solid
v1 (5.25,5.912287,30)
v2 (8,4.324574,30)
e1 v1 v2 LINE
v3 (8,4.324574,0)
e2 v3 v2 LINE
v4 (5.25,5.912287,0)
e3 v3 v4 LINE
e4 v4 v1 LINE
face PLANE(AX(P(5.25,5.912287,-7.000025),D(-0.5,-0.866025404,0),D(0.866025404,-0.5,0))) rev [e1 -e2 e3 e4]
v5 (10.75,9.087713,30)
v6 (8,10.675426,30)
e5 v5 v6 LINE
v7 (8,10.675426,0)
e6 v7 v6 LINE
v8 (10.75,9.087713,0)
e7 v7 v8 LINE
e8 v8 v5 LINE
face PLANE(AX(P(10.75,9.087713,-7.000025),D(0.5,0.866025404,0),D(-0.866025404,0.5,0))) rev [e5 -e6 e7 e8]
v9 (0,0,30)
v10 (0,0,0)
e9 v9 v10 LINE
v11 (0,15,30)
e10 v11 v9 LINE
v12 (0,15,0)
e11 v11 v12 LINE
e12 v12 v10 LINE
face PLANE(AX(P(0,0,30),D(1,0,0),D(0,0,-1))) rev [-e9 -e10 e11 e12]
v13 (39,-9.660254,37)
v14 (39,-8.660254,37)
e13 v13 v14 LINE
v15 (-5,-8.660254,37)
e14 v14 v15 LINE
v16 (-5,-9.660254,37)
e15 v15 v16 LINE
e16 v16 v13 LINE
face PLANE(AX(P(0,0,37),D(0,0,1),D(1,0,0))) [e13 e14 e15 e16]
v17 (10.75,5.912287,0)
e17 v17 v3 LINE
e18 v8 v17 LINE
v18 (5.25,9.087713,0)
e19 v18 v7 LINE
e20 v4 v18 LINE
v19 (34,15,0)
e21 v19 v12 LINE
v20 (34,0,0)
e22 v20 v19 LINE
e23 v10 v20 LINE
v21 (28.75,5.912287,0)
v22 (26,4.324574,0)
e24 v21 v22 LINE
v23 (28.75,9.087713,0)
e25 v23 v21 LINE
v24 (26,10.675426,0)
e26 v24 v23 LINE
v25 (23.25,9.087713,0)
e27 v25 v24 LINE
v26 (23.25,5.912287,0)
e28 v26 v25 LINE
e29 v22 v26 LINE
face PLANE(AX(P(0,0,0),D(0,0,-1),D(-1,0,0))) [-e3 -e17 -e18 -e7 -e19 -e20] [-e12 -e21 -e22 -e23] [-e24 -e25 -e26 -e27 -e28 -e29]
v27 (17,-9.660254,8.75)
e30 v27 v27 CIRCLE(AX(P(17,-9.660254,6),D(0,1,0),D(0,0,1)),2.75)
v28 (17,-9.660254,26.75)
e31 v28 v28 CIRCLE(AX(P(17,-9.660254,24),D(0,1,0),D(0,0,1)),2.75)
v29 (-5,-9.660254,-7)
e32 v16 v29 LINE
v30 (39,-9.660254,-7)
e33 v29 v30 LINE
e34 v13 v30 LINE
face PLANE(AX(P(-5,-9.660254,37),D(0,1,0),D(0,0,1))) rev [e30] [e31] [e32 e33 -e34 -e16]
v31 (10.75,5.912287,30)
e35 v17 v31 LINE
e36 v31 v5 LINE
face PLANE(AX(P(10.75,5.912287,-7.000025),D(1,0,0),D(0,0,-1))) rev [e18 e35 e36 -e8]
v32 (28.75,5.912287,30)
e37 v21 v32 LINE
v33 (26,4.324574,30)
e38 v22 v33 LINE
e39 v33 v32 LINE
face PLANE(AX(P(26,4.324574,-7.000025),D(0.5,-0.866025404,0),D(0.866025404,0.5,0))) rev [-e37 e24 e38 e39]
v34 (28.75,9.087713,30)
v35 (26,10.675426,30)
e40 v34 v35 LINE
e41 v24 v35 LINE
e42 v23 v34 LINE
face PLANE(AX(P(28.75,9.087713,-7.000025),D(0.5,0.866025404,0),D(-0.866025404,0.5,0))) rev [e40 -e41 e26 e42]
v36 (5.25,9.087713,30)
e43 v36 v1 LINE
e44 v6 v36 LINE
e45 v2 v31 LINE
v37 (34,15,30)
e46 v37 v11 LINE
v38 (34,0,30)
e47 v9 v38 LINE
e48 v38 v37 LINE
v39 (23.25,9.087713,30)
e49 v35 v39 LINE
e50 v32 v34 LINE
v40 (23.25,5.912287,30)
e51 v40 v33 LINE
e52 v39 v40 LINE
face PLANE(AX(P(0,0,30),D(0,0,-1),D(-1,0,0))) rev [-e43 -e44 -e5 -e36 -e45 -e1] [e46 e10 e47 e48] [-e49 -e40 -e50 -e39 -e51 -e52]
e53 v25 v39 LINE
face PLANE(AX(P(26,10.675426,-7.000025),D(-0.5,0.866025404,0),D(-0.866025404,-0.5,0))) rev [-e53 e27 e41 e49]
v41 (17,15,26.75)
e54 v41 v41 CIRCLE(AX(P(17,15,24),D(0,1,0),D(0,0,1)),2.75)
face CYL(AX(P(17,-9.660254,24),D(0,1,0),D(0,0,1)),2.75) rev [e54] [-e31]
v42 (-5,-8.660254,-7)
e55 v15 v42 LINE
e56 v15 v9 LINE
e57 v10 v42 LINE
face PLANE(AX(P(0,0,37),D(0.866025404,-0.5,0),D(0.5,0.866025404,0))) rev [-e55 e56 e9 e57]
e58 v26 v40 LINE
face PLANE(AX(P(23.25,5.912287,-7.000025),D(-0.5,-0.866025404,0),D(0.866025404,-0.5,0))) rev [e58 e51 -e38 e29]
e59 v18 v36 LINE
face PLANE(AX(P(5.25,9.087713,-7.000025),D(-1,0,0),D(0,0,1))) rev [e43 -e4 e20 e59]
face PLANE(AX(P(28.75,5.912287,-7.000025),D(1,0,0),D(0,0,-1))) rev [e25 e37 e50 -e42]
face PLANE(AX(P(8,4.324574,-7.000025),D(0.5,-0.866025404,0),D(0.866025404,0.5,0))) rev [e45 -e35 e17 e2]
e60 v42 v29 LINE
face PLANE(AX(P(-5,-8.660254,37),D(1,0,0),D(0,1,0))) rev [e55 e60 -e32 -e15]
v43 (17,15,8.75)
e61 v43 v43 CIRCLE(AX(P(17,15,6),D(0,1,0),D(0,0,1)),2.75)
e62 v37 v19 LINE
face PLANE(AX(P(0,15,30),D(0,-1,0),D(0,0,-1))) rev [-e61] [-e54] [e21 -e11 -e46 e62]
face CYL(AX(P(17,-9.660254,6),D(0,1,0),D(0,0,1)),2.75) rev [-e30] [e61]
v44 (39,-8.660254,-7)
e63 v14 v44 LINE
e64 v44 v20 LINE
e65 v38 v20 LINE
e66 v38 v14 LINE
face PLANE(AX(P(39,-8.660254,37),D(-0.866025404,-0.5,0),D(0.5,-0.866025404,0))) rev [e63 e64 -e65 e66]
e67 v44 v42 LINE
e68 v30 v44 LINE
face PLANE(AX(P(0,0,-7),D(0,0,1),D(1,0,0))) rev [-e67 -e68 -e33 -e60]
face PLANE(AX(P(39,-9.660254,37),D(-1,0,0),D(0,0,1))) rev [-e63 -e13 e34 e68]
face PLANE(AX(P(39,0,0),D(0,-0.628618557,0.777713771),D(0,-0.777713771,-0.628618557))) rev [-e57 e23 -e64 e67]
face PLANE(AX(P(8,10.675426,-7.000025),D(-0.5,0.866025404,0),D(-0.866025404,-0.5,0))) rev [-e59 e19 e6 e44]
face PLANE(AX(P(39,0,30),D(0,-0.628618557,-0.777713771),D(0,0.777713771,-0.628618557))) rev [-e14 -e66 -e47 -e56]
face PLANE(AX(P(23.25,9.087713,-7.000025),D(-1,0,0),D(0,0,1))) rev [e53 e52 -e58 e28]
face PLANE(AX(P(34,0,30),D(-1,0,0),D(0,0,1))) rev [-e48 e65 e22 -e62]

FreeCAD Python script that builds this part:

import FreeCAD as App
import Part
import Sketcher

V = App.Vector
Q = App.Units.Quantity


def add_polygon(sketch, points):
    """Adds a closed chain of lines whose ends are joined by coincident constraints."""
    first, n = sketch.GeometryCount, len(points)
    for a, b in zip(points, points[1:] + points[:1]):
        sketch.addGeometry(Part.LineSegment(App.Vector(*a, 0), App.Vector(*b, 0)), False)
    for i in range(n):
        sketch.addConstraint(Sketcher.Constraint("Coincident", first + i, 2, first + (i + 1) % n, 1))

doc = App.newDocument("Part")
params = doc.addObject("Spreadsheet::Sheet", "Params")
for row, (alias, value) in enumerate([
    ("sketch1_width", "34 mm"),
    ("sketch1_height", "15 mm"),
    ("pad1_length", "30 mm"),
    ("sketch2_width", "44 mm"),
    ("sketch2_width2", "34 mm"),
    ("sketch2_height", "1 mm"),
    ("pad2_length", "7 mm"),
    ("pad2_length2", "37 mm"),
    ("sketch4_height", "7 mm"),
    ("sketch5_diameter", "5.5 mm"),
], start=1):
    params.set(f"A{row}", alias)
    params.set(f"B{row}", "=" + value)
    params.setAlias(f"B{row}", alias)

body = doc.addObject("PartDesign::Body", "Body")

# Sketch on XY plane
sketch1 = body.newObject("Sketcher::SketchObject", "Sketch")
sketch1.AttachmentSupport = (doc.getObject("XY_Plane"), [""])
sketch1.MapMode = "FlatFace"
add_polygon(sketch1, [(0, 15), (0, 0), (34, 0), (34, 15)])  # lines 0-3
sketch1.addConstraint([
    Sketcher.Constraint("Vertical", 0),
    Sketcher.Constraint("Horizontal", 1),
    Sketcher.Constraint("Vertical", 2),
    Sketcher.Constraint("Horizontal", 3),
    Sketcher.Constraint("Coincident", 0, 2, -1, 1),
    Sketcher.Constraint("DistanceX", 1, 1, 1, 2, Q("34 mm")),
    Sketcher.Constraint("DistanceY", 0, 2, 0, 1, Q("15 mm")),
])
sketch1.setExpression("Constraints[9]", "Params.sketch1_width")
sketch1.setExpression("Constraints[10]", "Params.sketch1_height")
pad1 = body.newObject("PartDesign::Pad", "Pad")
pad1.Profile = sketch1
pad1.setExpression("Length", "Params.pad1_length")

# Sketch on XY plane
sketch2 = body.newObject("Sketcher::SketchObject", "Sketch001")
sketch2.AttachmentSupport = (doc.getObject("XY_Plane"), [""])
sketch2.MapMode = "FlatFace"
sketch2.AttachmentOffset = App.Placement(V(0, 0, 30), App.Rotation())
add_polygon(sketch2, [(0, 0), (-5, -8.7), (-5, -9.7), (39, -9.7), (39, -8.7), (34, 0)])  # lines 0-5
sketch2.addConstraint([
    Sketcher.Constraint("Vertical", 1),
    Sketcher.Constraint("Horizontal", 2),
    Sketcher.Constraint("Vertical", 3),
    Sketcher.Constraint("Horizontal", 5),
    Sketcher.Constraint("Coincident", 5, 2, -1, 1),
    Sketcher.Constraint("Horizontal", 0, 2, 3, 2),
    Sketcher.Constraint("Equal", 0, 4),
    Sketcher.Constraint("DistanceX", 2, 1, 2, 2, Q("44 mm")),
    Sketcher.Constraint("DistanceX", 5, 2, 5, 1, Q("34 mm")),
    Sketcher.Constraint("DistanceY", 1, 2, 1, 1, Q("1 mm")),
    Sketcher.Constraint("Angle", 0, Q("-120 deg")),
])
sketch2.setExpression("Constraints[13]", "Params.sketch2_width")
sketch2.setExpression("Constraints[14]", "Params.sketch2_width2")
sketch2.setExpression("Constraints[15]", "Params.sketch2_height")
pad2 = body.newObject("PartDesign::Pad", "Pad001")
pad2.Profile = sketch2
pad2.Type = "TwoLengths"
pad2.setExpression("Length", "Params.pad2_length")
pad2.setExpression("Length2", "Params.pad2_length2")

# Sketch on XY plane
sketch3 = body.newObject("Sketcher::SketchObject", "Sketch002")
sketch3.AttachmentSupport = (doc.getObject("XY_Plane"), [""])
sketch3.MapMode = "FlatFace"
sketch3.AttachmentOffset = App.Placement(V(0, 0, 30), App.Rotation())
add_polygon(sketch3, [(8, 4.3), (10.8, 5.9), (10.8, 9.1), (8, 10.7), (5.2, 9.1), (5.2, 5.9)])  # lines 0-5
add_polygon(sketch3, [(26, 4.3), (28.8, 5.9), (28.8, 9.1), (26, 10.7), (23.2, 9.1), (23.2, 5.9)])  # lines 6-11
sketch3.addConstraint([
    Sketcher.Constraint("Vertical", 1),
    Sketcher.Constraint("Vertical", 4),
    Sketcher.Constraint("Vertical", 7),
    Sketcher.Constraint("Vertical", 10),
    Sketcher.Constraint("Parallel", 0, 3),
    Sketcher.Constraint("Parallel", 2, 5),
    Sketcher.Constraint("Parallel", 3, 6),
    Sketcher.Constraint("Parallel", 5, 8),
    Sketcher.Constraint("Parallel", 6, 9),
    Sketcher.Constraint("Parallel", 8, 11),
    Sketcher.Constraint("Horizontal", 1, 2, 3, 2),
    Sketcher.Constraint("Horizontal", 0, 2, 4, 2),
    Sketcher.Constraint("Horizontal", 4, 2, 6, 2),
    Sketcher.Constraint("Horizontal", 3, 2, 7, 2),
    Sketcher.Constraint("Horizontal", 2, 2, 8, 2),
    Sketcher.Constraint("Horizontal", 7, 2, 9, 2),
    Sketcher.Constraint("Horizontal", 6, 2, 10, 2),
    Sketcher.Constraint("Vertical", 2, 2, 5, 2),
    Sketcher.Constraint("Angle", 0, Q("30 deg")),
    Sketcher.Constraint("DistanceX", -1, 1, 2, 2, Q("8 mm")),
    Sketcher.Constraint("DistanceX", -1, 1, 8, 2, Q("26 mm")),
    Sketcher.Constraint("DistanceX", 3, 2, 1, 2, Q("5.5 mm")),
    Sketcher.Constraint("DistanceY", 1, 1, 1, 2, Q("3.175426 mm")),
    Sketcher.Constraint("DistanceY", -1, 1, 0, 2, Q("5.912287 mm")),
])
pocket1 = body.newObject("PartDesign::Pocket", "Pocket")
pocket1.Profile = sketch3
pocket1.Type = "ThroughAll"

# Sketch on YZ plane
sketch4 = body.newObject("Sketcher::SketchObject", "Sketch003")
sketch4.AttachmentSupport = (doc.getObject("YZ_Plane"), [""])
sketch4.MapMode = "FlatFace"
add_polygon(sketch4, [(0, 30), (-9, 37), (0, 37)])  # lines 0-2
add_polygon(sketch4, [(-9, -7), (0, 0), (0, -7)])  # lines 3-5
sketch4.addConstraint([
    Sketcher.Constraint("Horizontal", 1),
    Sketcher.Constraint("Vertical", 2),
    Sketcher.Constraint("Vertical", 4),
    Sketcher.Constraint("Horizontal", 5),
    Sketcher.Constraint("Coincident", 3, 2, -1, 1),
    Sketcher.Constraint("PointOnObject", 1, 2, -2),
    Sketcher.Constraint("Vertical", 0, 2, 5, 2),
    Sketcher.Constraint("Equal", 2, 4),
    Sketcher.Constraint("DistanceY", 2, 2, 2, 1, Q("7 mm")),
    Sketcher.Constraint("DistanceY", -1, 1, 0, 2, Q("37 mm")),
    Sketcher.Constraint("Distance", 0, Q("11.135529 mm")),
])
sketch4.setExpression("Constraints[14]", "Params.sketch4_height")
pocket2 = body.newObject("PartDesign::Pocket", "Pocket001")
pocket2.Profile = sketch4
pocket2.Type = "ThroughAll"
pocket2.Midplane = True

# Sketch on XZ plane
sketch5 = body.newObject("Sketcher::SketchObject", "Sketch004")
sketch5.AttachmentSupport = (doc.getObject("XZ_Plane"), [""])
sketch5.MapMode = "FlatFace"
sketch5.AttachmentOffset = App.Placement(V(0, 0, -15), App.Rotation())
sketch5.addGeometry([
    Part.Circle(V(17, 6, 0), V(0, 0, 1), 2.8),
    Part.Circle(V(17, 24, 0), V(0, 0, 1), 2.8),
], False)
sketch5.addConstraint([
    Sketcher.Constraint("Equal", 0, 1),
    Sketcher.Constraint("Vertical", 0, 3, 1, 3),
    Sketcher.Constraint("Diameter", 0, Q("5.5 mm")),
    Sketcher.Constraint("DistanceX", -1, 1, 0, 3, Q("17 mm")),
    Sketcher.Constraint("DistanceY", -1, 1, 0, 3, Q("6 mm")),
    Sketcher.Constraint("DistanceY", -1, 1, 1, 3, Q("24 mm")),
])
sketch5.setExpression("Constraints[2]", "Params.sketch5_diameter")
pocket3 = body.newObject("PartDesign::Pocket", "Pocket002")
pocket3.Profile = sketch5
pocket3.Type = "ThroughAll"
pocket3.Reversed = True

doc.recompute()
